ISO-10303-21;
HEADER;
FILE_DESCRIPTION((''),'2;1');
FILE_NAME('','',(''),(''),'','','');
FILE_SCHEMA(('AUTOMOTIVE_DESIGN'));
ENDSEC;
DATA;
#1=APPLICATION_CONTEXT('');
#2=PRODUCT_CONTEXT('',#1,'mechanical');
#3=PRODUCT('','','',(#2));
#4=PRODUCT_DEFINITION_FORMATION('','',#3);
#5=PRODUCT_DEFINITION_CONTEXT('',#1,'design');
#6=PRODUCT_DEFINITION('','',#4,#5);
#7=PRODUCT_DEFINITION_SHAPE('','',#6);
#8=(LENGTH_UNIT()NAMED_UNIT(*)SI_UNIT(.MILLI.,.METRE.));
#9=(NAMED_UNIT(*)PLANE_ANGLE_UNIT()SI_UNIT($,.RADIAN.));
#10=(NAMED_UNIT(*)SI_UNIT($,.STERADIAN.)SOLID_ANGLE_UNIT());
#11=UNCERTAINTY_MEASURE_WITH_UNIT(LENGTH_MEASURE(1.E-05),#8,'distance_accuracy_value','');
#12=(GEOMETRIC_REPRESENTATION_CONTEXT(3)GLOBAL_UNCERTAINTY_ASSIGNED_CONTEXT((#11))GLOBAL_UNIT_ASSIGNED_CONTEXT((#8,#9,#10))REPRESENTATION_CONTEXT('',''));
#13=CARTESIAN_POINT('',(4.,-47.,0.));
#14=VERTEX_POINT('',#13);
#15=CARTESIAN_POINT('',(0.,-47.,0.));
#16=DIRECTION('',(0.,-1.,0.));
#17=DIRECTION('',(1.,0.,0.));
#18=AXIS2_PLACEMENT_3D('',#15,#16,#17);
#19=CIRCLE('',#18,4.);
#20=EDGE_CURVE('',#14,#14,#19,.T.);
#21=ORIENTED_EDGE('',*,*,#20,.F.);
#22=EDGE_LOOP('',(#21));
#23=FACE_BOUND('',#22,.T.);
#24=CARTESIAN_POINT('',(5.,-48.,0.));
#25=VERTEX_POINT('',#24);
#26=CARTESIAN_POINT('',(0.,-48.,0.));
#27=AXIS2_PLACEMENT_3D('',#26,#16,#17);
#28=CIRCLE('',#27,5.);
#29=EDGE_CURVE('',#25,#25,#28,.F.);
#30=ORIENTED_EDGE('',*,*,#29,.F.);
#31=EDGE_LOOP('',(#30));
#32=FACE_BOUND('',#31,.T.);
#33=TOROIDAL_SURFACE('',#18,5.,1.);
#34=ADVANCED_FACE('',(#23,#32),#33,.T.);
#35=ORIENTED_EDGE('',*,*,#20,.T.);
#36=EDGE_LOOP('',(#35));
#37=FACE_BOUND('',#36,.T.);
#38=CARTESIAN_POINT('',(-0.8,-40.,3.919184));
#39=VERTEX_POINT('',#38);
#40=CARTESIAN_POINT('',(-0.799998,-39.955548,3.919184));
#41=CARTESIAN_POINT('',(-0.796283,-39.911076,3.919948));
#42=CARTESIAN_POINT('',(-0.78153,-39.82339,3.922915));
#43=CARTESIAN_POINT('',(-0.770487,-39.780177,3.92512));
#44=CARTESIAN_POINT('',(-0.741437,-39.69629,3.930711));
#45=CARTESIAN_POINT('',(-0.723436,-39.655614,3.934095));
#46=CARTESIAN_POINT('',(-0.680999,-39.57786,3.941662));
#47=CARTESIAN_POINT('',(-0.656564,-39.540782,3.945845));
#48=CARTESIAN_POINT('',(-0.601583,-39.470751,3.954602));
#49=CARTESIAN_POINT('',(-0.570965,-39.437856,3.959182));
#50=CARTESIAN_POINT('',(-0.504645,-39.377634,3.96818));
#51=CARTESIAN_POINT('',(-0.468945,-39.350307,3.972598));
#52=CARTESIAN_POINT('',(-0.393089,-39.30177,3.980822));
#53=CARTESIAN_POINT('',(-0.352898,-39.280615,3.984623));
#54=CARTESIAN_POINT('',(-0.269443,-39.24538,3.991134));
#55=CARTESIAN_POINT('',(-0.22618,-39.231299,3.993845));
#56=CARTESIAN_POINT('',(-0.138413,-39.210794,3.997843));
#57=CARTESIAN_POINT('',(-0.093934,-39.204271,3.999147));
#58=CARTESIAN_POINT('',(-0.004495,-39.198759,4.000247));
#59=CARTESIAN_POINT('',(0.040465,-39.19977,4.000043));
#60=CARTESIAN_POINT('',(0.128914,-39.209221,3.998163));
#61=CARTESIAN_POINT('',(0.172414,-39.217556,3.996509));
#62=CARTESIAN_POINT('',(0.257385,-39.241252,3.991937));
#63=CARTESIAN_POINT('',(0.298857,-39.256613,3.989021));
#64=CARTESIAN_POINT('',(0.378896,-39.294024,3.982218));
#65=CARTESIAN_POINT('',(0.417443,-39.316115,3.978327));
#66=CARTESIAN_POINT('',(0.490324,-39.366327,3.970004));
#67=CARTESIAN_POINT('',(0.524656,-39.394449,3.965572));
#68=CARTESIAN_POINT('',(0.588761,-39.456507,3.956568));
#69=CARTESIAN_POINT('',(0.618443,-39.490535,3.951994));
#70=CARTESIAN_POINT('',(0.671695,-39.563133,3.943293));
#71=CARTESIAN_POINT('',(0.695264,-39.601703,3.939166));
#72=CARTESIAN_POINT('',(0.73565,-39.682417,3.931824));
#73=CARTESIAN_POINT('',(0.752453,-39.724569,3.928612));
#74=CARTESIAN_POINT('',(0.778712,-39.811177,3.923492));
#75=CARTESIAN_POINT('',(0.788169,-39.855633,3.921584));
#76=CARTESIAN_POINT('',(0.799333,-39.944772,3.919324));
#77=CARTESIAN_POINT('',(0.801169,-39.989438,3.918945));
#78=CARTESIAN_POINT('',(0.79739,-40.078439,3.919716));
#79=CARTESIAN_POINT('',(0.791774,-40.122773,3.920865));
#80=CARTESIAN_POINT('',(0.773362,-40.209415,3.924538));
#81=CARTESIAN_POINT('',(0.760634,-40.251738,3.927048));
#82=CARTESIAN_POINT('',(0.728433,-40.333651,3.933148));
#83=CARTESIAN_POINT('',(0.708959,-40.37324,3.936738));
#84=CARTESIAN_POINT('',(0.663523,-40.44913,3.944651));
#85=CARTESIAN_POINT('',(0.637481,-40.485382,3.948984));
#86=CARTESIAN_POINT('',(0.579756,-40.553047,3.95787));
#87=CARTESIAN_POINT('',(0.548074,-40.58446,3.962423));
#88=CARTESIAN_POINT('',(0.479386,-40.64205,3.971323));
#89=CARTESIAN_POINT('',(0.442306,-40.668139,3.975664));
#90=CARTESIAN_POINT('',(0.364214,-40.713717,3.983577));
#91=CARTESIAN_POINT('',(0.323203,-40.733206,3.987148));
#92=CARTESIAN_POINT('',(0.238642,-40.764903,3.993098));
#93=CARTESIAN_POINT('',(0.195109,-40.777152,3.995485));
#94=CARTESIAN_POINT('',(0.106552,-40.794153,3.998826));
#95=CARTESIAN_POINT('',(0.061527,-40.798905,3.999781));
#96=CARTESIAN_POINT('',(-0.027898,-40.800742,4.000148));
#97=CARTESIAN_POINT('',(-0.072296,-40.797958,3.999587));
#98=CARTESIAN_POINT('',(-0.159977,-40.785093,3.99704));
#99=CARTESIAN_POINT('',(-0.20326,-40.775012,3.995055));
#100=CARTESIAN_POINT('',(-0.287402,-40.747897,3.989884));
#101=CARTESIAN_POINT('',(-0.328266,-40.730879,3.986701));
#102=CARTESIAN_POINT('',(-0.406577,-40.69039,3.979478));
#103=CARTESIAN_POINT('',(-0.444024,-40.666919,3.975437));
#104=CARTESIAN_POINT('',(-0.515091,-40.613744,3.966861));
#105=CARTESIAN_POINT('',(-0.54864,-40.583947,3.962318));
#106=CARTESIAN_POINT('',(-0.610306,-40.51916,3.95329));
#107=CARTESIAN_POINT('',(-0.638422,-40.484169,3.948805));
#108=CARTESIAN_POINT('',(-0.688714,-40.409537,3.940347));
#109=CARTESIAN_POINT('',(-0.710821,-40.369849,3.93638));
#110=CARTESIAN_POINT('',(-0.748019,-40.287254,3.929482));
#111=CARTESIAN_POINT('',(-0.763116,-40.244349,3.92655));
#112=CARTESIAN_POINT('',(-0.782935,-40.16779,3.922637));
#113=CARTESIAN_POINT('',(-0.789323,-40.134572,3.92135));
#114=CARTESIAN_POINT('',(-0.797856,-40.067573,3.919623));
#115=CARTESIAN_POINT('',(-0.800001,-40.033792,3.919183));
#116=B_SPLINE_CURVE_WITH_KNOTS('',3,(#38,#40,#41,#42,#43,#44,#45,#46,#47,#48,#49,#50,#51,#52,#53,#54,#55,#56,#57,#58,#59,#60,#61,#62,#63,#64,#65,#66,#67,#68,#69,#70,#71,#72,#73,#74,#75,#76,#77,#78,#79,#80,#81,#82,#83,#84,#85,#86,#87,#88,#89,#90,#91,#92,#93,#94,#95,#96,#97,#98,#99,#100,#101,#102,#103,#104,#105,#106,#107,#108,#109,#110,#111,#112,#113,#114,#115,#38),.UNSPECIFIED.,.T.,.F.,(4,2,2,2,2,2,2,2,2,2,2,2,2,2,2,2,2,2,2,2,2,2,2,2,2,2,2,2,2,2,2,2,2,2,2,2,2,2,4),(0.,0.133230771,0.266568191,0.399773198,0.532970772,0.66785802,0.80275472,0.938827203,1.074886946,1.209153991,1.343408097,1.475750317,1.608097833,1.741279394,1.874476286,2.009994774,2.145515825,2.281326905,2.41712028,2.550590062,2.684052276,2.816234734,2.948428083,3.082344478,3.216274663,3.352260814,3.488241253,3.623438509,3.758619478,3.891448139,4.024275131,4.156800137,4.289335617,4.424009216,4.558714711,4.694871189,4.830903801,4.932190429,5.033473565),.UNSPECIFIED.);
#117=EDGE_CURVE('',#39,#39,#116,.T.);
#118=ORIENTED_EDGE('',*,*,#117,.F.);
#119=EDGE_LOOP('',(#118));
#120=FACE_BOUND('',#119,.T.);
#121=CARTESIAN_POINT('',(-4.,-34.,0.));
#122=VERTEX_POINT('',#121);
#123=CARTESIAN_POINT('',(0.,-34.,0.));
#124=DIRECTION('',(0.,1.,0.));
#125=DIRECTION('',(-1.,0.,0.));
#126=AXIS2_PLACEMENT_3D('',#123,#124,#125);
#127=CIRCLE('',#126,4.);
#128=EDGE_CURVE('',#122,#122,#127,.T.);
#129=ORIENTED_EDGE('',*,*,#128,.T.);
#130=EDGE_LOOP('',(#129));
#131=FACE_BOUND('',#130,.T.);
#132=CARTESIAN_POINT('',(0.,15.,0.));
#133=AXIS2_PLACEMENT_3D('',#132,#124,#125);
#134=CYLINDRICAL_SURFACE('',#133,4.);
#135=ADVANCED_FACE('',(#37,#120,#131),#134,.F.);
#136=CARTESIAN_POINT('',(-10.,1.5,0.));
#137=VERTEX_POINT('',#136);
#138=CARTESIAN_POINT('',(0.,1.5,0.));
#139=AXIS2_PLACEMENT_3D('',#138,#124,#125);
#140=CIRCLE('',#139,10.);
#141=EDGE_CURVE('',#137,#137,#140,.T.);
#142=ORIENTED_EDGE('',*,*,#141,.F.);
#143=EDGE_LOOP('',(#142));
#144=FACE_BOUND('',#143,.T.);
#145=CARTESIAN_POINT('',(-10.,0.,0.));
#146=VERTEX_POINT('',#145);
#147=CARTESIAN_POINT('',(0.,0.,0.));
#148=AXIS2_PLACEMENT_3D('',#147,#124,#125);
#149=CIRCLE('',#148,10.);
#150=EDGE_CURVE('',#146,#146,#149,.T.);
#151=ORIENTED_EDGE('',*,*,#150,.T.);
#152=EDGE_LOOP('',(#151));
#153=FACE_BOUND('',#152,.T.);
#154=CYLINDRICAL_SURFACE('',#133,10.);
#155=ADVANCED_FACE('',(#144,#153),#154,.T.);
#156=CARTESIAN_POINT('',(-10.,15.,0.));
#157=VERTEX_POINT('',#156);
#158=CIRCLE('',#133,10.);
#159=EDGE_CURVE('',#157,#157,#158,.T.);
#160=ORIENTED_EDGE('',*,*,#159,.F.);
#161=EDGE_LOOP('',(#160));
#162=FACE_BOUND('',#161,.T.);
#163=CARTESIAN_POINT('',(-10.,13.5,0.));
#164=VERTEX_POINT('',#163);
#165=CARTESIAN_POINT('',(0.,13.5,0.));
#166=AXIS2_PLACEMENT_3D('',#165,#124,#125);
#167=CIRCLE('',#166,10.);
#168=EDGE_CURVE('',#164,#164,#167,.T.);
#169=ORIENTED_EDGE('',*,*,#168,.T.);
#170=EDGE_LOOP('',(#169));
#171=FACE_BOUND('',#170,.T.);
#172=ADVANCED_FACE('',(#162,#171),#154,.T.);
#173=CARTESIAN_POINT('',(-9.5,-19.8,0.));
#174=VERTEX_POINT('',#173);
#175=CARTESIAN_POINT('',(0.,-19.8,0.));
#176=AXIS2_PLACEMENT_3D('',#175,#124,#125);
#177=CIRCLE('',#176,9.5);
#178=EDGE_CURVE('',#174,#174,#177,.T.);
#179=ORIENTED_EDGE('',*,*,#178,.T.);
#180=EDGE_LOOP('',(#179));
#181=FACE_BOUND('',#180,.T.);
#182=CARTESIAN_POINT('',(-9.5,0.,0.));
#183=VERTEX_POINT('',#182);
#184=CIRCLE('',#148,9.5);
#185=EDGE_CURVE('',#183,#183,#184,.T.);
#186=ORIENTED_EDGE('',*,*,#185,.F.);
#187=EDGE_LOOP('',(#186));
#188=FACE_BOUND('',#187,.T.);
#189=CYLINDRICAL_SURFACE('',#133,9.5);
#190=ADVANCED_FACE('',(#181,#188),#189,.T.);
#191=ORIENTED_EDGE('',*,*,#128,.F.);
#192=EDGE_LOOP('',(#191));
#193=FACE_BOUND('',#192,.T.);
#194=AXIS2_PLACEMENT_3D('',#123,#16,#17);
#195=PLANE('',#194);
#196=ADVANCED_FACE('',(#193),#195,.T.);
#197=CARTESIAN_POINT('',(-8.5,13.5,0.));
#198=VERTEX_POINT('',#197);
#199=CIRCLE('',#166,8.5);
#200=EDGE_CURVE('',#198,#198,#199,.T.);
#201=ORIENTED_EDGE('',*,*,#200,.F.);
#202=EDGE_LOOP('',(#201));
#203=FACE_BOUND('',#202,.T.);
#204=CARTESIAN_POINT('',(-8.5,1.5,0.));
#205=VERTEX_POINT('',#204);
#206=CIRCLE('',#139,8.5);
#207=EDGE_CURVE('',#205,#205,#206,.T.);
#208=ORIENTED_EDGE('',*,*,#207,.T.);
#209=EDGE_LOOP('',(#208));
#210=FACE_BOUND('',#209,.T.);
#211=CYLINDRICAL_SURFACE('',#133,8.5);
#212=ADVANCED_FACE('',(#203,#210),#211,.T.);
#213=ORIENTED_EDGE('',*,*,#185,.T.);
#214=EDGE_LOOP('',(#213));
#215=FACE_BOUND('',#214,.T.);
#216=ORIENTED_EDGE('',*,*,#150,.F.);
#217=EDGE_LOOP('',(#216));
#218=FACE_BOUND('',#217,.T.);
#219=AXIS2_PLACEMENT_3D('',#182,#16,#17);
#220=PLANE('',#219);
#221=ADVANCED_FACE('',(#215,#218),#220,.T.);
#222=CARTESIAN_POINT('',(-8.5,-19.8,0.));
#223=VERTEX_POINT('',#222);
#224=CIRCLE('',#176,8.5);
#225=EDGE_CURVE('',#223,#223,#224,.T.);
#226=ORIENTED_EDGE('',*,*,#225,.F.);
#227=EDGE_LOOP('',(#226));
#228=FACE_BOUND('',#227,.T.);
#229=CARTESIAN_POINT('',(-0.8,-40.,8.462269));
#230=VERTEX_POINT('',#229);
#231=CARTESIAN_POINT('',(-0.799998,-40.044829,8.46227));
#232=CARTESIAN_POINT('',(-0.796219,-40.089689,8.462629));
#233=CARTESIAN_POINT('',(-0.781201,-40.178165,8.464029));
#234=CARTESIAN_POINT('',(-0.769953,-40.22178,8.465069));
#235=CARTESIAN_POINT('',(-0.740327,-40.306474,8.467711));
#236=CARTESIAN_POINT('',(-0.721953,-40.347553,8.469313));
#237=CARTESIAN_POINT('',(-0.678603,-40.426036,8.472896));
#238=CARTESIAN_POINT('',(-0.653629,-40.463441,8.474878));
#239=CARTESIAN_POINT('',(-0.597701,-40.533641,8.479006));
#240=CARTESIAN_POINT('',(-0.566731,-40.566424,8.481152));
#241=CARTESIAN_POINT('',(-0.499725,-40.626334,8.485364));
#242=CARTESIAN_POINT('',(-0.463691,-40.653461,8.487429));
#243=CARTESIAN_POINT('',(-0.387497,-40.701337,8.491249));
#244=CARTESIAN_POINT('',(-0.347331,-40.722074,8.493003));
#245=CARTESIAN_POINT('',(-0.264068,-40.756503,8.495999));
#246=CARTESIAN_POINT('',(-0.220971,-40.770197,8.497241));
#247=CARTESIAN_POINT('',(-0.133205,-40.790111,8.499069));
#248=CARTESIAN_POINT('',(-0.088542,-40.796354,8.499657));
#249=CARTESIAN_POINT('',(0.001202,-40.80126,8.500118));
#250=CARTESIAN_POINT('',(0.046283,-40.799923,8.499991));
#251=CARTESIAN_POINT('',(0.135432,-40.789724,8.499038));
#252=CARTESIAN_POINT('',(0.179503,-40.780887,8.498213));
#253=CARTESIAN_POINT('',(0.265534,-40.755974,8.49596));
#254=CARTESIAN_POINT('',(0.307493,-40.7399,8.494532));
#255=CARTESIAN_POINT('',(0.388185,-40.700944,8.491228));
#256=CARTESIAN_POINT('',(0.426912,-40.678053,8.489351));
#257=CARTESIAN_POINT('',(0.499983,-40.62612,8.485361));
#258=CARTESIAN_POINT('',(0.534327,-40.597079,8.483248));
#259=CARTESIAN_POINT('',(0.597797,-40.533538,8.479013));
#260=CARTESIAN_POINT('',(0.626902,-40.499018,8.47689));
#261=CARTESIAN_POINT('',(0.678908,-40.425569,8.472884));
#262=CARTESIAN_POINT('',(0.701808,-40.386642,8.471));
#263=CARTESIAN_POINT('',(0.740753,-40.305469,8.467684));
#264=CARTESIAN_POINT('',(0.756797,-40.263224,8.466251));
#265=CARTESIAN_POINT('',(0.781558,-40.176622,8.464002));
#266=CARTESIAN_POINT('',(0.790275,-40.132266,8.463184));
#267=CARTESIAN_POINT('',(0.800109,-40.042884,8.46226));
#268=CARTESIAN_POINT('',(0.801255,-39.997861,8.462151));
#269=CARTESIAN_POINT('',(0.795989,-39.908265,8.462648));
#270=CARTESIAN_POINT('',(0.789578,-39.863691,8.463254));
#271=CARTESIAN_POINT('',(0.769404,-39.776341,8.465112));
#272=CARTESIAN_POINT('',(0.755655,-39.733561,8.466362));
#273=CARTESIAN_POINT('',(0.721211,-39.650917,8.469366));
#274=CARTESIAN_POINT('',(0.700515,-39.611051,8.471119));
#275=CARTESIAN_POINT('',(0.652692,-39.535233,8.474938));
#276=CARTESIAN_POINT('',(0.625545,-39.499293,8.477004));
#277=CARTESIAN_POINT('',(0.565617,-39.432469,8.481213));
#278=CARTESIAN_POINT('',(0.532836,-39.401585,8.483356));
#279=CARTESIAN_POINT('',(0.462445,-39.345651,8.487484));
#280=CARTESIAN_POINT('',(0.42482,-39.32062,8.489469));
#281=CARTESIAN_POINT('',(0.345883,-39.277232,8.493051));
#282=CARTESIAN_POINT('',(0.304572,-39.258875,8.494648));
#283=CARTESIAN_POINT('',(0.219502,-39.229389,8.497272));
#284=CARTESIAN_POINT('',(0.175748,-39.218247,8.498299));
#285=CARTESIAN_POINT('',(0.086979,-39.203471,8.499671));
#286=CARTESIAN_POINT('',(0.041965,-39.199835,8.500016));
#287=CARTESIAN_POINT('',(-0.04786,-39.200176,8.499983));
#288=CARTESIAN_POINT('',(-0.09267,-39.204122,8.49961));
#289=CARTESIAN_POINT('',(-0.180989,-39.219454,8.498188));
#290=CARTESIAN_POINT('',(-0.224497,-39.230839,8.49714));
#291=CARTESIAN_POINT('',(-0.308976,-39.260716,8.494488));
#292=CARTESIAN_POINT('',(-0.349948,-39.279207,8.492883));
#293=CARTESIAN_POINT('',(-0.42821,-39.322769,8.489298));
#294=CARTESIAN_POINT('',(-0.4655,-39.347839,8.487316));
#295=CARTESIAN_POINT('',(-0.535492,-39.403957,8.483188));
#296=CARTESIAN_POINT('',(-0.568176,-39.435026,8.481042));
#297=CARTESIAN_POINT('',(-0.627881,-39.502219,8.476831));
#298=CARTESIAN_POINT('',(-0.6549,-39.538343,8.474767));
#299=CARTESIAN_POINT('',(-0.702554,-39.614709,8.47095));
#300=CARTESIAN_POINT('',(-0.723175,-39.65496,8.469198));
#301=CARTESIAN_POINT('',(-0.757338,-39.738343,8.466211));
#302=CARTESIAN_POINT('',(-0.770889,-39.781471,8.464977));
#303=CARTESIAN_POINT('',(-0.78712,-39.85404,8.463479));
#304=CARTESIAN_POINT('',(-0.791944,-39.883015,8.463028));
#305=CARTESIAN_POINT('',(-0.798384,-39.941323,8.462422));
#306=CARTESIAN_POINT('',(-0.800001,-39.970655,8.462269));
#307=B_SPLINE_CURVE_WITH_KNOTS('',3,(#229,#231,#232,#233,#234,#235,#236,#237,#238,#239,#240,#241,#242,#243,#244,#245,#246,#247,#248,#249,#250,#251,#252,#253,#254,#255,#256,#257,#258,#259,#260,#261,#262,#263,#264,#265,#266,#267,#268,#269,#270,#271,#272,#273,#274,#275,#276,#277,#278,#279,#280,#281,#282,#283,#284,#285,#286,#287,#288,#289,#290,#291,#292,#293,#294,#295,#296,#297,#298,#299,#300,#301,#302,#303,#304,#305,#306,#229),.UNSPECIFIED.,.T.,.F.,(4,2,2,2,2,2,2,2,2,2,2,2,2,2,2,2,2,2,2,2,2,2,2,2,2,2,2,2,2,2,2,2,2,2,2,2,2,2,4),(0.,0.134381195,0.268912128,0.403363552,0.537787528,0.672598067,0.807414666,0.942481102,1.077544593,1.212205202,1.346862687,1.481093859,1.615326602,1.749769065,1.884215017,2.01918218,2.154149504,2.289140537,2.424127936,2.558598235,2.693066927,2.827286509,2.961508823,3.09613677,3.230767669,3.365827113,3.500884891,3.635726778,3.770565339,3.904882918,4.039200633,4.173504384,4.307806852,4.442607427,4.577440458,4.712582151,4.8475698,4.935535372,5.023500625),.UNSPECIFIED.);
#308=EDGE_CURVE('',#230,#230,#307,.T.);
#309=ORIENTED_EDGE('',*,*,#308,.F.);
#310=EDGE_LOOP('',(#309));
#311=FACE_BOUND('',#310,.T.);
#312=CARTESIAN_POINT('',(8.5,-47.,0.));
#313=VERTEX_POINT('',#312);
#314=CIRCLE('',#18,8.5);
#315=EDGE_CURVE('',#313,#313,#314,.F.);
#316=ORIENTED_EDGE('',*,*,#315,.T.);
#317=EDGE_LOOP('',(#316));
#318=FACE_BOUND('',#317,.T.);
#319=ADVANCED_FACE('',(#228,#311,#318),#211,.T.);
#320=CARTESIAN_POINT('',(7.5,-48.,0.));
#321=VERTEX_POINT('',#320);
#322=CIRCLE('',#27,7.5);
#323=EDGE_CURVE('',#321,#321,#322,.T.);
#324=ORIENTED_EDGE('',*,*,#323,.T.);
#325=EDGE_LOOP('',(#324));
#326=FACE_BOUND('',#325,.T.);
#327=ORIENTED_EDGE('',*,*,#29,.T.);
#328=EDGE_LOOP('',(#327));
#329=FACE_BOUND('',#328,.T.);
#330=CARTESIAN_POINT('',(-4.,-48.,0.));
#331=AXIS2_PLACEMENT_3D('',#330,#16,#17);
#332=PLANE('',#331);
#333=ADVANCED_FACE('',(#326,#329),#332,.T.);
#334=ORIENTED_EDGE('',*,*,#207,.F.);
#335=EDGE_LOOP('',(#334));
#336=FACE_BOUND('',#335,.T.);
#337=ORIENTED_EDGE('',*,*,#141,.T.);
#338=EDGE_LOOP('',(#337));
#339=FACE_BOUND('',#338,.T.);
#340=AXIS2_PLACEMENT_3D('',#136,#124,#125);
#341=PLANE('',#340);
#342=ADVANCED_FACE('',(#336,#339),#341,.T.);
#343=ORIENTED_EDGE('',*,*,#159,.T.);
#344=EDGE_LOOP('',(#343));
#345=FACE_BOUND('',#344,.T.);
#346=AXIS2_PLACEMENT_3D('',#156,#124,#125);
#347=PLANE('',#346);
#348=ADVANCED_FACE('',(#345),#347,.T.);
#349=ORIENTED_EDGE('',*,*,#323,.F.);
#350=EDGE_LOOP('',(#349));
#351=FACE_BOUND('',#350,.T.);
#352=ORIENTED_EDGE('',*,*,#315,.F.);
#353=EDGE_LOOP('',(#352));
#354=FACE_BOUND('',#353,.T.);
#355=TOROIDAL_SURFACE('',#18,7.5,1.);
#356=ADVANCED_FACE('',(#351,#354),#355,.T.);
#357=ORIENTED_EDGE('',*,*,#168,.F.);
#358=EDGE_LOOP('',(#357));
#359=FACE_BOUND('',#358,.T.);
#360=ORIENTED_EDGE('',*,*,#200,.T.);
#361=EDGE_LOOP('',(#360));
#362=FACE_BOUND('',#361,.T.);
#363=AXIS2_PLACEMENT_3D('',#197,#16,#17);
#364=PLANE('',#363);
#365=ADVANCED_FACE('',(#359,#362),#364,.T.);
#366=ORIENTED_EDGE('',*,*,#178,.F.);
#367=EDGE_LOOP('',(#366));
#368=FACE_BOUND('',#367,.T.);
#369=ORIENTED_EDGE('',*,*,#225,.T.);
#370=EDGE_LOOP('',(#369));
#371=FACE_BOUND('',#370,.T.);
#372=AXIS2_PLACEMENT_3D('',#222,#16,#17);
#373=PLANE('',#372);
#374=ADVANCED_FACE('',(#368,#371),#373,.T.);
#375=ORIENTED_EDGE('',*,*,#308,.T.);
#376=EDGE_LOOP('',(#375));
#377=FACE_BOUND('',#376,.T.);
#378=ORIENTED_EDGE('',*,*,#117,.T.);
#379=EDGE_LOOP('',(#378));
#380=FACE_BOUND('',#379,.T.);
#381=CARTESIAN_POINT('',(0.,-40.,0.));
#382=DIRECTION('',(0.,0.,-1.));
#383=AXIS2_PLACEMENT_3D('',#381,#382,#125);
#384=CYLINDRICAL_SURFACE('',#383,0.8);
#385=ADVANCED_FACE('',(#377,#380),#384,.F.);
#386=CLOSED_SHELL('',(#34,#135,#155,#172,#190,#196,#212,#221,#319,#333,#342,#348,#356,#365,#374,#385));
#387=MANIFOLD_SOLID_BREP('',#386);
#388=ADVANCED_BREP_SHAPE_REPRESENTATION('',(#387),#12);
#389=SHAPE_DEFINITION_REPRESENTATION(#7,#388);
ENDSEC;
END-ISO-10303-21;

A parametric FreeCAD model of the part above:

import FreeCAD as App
import Part
import Sketcher

V = App.Vector


def edges_at(feature, points):
    """Names of the edges that pass closest to the given points."""
    edges = feature.Shape.Edges
    near = lambda p: min(range(len(edges)), key=lambda i: edges[i].distToShape(Part.Vertex(*p))[0])
    return sorted({f"Edge{near(p) + 1}" for p in points})


def add_polygon(sketch, points):
    """Adds a closed chain of lines whose ends are joined by coincident constraints."""
    first, n = sketch.GeometryCount, len(points)
    for a, b in zip(points, points[1:] + points[:1]):
        sketch.addGeometry(Part.LineSegment(App.Vector(*a, 0), App.Vector(*b, 0)), False)
    for i in range(n):
        sketch.addConstraint(Sketcher.Constraint("Coincident", first + i, 2, first + (i + 1) % n, 1))

doc = App.newDocument("Part")
body = doc.addObject("PartDesign::Body", "Body")

sketch1 = body.newObject("Sketcher::SketchObject", "Sketch")
sketch1.AttachmentSupport = (doc.getObject("XY_Plane"), [""])
sketch1.MapMode = "FlatFace"
add_polygon(sketch1, [(-8.5, -19.8), (-8.5, -48), (-4, -48), (-4, -34), (0, -34), (0, 15), (-10, 15), (-10, 13.5), (-8.5, 13.5), (-8.5, 1.5), (-10, 1.5), (-10, 0), (-9.5, 0), (-9.5, -19.8)])
sketch1.addConstraint([
    Sketcher.Constraint("Vertical", 0),
    Sketcher.Constraint("Horizontal", 1),
    Sketcher.Constraint("Vertical", 2),
    Sketcher.Constraint("Horizontal", 3),
    Sketcher.Constraint("Vertical", 4),
    Sketcher.Constraint("Horizontal", 5),
    Sketcher.Constraint("Vertical", 6),
    Sketcher.Constraint("Horizontal", 7),
    Sketcher.Constraint("Vertical", 8),
    Sketcher.Constraint("Horizontal", 9),
    Sketcher.Constraint("Vertical", 10),
    Sketcher.Constraint("Horizontal", 11),
    Sketcher.Constraint("Vertical", 12),
    Sketcher.Constraint("Horizontal", 13),
    Sketcher.Constraint("PointOnObject", 3, 2, -2),
    Sketcher.Constraint("PointOnObject", 10, 2, -1),
    Sketcher.Constraint("Vertical", 0, 2, 7, 2),
    Sketcher.Constraint("Vertical", 6, 2, 9, 2),
    Sketcher.Constraint("Equal", 9, 6),
    Sketcher.Constraint("Equal", 6, 10),
    Sketcher.Constraint("DistanceX", 3, 1, 3, 2, 4.0),
    Sketcher.Constraint("DistanceX", 5, 2, 5, 1, 10.0),
    Sketcher.Constraint("DistanceX", 13, 1, 13, 2, 1.0),
    Sketcher.Constraint("DistanceY", 2, 1, 2, 2, 14.0),
    Sketcher.Constraint("DistanceY", 4, 1, 4, 2, 49.0),
    Sketcher.Constraint("DistanceY", 8, 2, 8, 1, 12.0),
    Sketcher.Constraint("DistanceX", 1, 1, 1, 2, 4.5),
    Sketcher.Constraint("DistanceY", 0, 2, 0, 1, 28.2),
])
revolution = body.newObject("PartDesign::Revolution", "Revolution")
revolution.Profile = sketch1
revolution.ReferenceAxis = (sketch1, ["V_Axis"])
revolution.Angle = 360
doc.recompute()

fillet = body.newObject("PartDesign::Fillet", "Fillet")
fillet.Base = (revolution, edges_at(revolution, [(8.5, -48, 0), (4, -48, 0)]))
fillet.Radius = 1

sketch2 = body.newObject("Sketcher::SketchObject", "Sketch001")
sketch2.AttachmentSupport = (doc.getObject("YZ_Plane"), [""])
sketch2.MapMode = "FlatFace"
add_polygon(sketch2, [(-40, 8.5), (-40, 0), (-39.2, 0), (-39.2, 8.5)])
sketch2.addGeometry(Part.LineSegment(V(-40, 0, 0), V(-40, 8.5, 0)), True)
sketch2.addConstraint([
    Sketcher.Constraint("Vertical", 0),
    Sketcher.Constraint("Horizontal", 1),
    Sketcher.Constraint("Vertical", 2),
    Sketcher.Constraint("Horizontal", 3),
    Sketcher.Constraint("Vertical", 4),
    Sketcher.Constraint("Coincident", 4, 1, 0, 2),
    Sketcher.Constraint("PointOnObject", 0, 2, -1),
    Sketcher.Constraint("Horizontal", 2, 2, 4, 2),
    Sketcher.Constraint("DistanceX", 1, 1, 1, 2, 0.8),
    Sketcher.Constraint("DistanceY", 0, 2, 0, 1, 8.5),
    Sketcher.Constraint("DistanceX", 0, 2, -1, 1, 40.0),
])
groove = body.newObject("PartDesign::Groove", "Groove")
groove.Profile = sketch2
groove.ReferenceAxis = (sketch2, ["Axis0"])
groove.Angle = 360

doc.recompute()
